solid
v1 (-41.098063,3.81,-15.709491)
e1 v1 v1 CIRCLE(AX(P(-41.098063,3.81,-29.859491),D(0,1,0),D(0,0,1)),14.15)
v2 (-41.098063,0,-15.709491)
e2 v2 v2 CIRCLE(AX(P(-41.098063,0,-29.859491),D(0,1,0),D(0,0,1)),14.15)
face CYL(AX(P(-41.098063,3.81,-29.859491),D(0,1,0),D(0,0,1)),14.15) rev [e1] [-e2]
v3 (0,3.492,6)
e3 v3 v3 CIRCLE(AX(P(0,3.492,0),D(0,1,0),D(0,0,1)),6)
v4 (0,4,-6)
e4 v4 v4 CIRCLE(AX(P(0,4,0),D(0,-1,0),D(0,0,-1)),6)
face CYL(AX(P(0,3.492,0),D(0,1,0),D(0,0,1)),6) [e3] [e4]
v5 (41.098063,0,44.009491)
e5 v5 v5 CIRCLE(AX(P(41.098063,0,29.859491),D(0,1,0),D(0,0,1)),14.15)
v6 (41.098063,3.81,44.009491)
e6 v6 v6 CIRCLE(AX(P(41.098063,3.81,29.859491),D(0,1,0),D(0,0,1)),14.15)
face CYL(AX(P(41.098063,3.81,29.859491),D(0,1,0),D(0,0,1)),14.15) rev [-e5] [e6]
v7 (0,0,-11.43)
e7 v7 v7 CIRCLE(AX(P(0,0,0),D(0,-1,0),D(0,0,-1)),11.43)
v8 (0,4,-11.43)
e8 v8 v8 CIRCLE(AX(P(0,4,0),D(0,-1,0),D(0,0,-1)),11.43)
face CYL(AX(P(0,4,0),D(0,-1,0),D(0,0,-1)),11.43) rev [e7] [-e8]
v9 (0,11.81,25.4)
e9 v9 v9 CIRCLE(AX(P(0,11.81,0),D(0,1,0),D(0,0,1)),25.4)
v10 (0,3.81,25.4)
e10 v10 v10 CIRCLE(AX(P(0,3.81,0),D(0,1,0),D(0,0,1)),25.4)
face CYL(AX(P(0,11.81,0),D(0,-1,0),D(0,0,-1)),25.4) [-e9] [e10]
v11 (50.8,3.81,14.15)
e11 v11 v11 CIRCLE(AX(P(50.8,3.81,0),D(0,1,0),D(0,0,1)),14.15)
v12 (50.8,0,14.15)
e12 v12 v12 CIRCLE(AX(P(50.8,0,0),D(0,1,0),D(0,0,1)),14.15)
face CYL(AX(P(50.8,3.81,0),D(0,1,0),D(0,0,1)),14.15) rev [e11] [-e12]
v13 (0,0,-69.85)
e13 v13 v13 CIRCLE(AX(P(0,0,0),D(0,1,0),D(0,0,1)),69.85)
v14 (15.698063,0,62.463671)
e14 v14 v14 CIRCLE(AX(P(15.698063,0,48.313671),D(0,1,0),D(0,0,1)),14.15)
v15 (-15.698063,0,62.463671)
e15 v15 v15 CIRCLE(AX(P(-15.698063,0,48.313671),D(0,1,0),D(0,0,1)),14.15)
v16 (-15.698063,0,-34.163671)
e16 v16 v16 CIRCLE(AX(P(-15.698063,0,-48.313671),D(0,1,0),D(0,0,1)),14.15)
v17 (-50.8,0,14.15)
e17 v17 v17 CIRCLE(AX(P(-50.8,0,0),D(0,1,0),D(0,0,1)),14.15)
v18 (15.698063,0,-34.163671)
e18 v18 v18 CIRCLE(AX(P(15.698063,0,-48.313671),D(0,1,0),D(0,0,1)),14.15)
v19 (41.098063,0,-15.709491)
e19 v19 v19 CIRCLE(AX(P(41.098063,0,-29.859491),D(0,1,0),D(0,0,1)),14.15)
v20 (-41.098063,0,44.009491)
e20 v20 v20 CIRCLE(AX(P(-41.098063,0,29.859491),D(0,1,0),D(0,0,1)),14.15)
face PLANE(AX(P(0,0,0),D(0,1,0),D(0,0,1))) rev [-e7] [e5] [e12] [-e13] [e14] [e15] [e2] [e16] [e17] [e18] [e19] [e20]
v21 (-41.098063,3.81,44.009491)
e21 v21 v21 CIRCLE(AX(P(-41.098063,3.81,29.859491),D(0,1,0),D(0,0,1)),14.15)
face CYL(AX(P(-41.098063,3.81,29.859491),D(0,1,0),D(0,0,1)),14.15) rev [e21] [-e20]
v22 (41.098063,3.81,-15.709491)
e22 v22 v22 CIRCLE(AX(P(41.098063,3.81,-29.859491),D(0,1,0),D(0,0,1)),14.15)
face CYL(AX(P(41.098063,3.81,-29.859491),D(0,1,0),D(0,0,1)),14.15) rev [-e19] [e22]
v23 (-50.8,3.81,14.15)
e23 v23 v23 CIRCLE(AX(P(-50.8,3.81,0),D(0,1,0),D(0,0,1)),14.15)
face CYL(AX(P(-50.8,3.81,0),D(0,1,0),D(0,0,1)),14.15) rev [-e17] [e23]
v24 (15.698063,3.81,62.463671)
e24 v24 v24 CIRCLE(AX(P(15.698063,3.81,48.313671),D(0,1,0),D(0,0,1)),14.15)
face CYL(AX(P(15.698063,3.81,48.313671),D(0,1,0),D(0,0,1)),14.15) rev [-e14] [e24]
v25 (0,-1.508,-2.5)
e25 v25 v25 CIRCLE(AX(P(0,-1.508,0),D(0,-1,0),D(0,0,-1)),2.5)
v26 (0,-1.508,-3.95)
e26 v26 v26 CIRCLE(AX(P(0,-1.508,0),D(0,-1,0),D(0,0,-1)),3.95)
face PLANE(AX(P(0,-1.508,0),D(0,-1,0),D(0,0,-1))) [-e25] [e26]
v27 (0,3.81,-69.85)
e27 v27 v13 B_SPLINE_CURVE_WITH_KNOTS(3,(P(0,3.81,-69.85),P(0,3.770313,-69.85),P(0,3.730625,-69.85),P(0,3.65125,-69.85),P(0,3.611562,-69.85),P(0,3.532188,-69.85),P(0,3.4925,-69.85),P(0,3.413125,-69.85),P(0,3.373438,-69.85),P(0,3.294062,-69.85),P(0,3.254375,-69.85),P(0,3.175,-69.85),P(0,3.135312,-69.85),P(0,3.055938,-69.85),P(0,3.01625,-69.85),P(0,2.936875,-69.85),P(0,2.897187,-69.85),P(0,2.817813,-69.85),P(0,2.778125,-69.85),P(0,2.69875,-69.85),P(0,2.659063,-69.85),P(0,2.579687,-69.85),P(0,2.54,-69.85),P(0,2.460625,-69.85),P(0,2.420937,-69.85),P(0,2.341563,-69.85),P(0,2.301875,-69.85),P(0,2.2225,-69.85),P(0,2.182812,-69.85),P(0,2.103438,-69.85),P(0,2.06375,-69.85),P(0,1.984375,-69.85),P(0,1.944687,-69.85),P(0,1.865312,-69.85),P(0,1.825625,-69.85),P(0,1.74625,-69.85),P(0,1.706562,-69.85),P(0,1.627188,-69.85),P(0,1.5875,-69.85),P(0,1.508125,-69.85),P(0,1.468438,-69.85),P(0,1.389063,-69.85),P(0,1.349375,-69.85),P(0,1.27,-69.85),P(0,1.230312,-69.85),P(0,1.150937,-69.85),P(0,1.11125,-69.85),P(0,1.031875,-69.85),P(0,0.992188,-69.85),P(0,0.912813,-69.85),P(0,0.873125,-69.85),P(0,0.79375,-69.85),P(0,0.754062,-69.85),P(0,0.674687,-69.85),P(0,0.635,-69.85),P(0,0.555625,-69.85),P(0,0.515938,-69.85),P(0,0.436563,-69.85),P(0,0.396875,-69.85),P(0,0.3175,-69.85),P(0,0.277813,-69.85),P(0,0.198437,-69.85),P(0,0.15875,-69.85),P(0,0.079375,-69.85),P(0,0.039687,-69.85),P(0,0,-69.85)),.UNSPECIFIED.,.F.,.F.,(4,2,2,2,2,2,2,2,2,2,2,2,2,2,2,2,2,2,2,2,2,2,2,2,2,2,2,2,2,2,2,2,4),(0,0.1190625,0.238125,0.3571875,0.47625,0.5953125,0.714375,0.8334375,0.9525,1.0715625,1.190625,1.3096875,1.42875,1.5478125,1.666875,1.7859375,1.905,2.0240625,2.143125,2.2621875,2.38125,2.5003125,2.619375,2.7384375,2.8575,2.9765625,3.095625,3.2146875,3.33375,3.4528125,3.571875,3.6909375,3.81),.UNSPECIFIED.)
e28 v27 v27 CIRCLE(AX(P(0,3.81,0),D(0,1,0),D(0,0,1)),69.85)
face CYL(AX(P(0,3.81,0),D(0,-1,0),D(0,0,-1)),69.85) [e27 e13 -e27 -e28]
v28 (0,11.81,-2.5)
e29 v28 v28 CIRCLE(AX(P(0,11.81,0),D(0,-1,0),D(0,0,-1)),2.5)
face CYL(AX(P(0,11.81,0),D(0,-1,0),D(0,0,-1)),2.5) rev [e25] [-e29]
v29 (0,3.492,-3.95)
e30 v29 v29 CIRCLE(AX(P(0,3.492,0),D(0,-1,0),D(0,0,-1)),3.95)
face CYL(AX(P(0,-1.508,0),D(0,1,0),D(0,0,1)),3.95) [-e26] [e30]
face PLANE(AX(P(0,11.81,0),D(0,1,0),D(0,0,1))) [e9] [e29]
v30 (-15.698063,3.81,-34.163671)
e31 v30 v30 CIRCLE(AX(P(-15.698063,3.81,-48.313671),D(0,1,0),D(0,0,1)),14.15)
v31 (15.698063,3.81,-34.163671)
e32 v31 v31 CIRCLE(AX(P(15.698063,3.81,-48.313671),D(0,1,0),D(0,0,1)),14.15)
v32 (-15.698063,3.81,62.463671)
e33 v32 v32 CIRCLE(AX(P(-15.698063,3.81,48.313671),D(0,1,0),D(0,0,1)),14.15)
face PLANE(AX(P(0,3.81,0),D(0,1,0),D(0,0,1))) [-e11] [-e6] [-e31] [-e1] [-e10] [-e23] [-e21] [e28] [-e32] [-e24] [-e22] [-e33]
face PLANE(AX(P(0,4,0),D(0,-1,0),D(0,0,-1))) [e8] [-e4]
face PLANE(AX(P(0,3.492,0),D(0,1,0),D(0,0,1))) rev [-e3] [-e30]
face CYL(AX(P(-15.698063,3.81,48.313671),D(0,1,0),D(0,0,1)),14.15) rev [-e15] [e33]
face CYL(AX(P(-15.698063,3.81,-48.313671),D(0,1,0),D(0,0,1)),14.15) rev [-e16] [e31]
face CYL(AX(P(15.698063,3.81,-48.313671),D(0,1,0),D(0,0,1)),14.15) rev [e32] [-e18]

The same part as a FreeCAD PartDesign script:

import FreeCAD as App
import Part
import Sketcher
Q = App.Units.Quantity

doc = App.newDocument("Part")
body = doc.addObject("PartDesign::Body", "Body")

sketch1 = doc.addObject("Sketcher::SketchObject", "Sketch")
body.addObject(sketch1)
sketch1.AttachmentSupport = (doc.XZ_Plane, [""])
sketch1.MapMode = "FlatFace"
sketch1.addGeometry(Part.Circle(App.Vector(0, 0, 0), App.Vector(0, 0, 1), 70), False)
sketch1.addConstraint(Sketcher.Constraint("Coincident", 0, 3, -1, 1))
sketch1.addConstraint(Sketcher.Constraint("Diameter", 0, Q("139.7 mm")))
pad1 = doc.addObject("PartDesign::Pad", "Pad")
body.addObject(pad1)
pad1.Profile = sketch1
pad1.Length = 3.81
pad1.Reversed = True

sketch2 = doc.addObject("Sketcher::SketchObject", "Sketch001")
body.addObject(sketch2)
sketch2.AttachmentSupport = (doc.XZ_Plane, [""])
sketch2.MapMode = "FlatFace"
sketch2.AttachmentOffset = App.Placement(App.Vector(0, 0, -3.81), App.Rotation())
sketch2.addGeometry(Part.Circle(App.Vector(0, 0, 0), App.Vector(0, 0, 1), 25), False)
sketch2.addConstraint(Sketcher.Constraint("Coincident", 0, 3, -1, 1))
sketch2.addConstraint(Sketcher.Constraint("Diameter", 0, Q("50.8 mm")))
pad2 = doc.addObject("PartDesign::Pad", "Pad001")
body.addObject(pad2)
pad2.Profile = sketch2
pad2.Length = 8
pad2.Reversed = True

sketch3 = doc.addObject("Sketcher::SketchObject", "Sketch002")
body.addObject(sketch3)
sketch3.AttachmentSupport = (doc.XZ_Plane, [""])
sketch3.MapMode = "FlatFace"
sketch3.addGeometry(Part.Circle(App.Vector(0, 0, 0), App.Vector(0, 0, 1), 11), False)
sketch3.addConstraint(Sketcher.Constraint("Coincident", 0, 3, -1, 1))
sketch3.addConstraint(Sketcher.Constraint("Diameter", 0, Q("22.86 mm")))
pocket1 = doc.addObject("PartDesign::Pocket", "Pocket")
body.addObject(pocket1)
pocket1.Profile = sketch3
pocket1.Length = 4

sketch4 = doc.addObject("Sketcher::SketchObject", "Sketch003")
body.addObject(sketch4)
sketch4.AttachmentSupport = (doc.XZ_Plane, [""])
sketch4.MapMode = "FlatFace"
sketch4.AttachmentOffset = App.Placement(App.Vector(0, 0, -4), App.Rotation())
sketch4.addGeometry(Part.Circle(App.Vector(0, 0, 0), App.Vector(0, 0, 1), 6), False)
sketch4.addConstraint(Sketcher.Constraint("Coincident", 0, 3, -1, 1))
sketch4.addConstraint(Sketcher.Constraint("Diameter", 0, Q("12 mm")))
pad3 = doc.addObject("PartDesign::Pad", "Pad002")
body.addObject(pad3)
pad3.Profile = sketch4
pad3.Length = 0.508

sketch5 = doc.addObject("Sketcher::SketchObject", "Sketch004")
body.addObject(sketch5)
sketch5.AttachmentSupport = (doc.XZ_Plane, [""])
sketch5.MapMode = "FlatFace"
sketch5.AttachmentOffset = App.Placement(App.Vector(0, 0, -3.492), App.Rotation())
sketch5.addGeometry(Part.Circle(App.Vector(0, 0, 0), App.Vector(0, 0, 1), 4), False)
sketch5.addConstraint(Sketcher.Constraint("Coincident", 0, 3, -1, 1))
sketch5.addConstraint(Sketcher.Constraint("Diameter", 0, Q("7.9 mm")))
pad4 = doc.addObject("PartDesign::Pad", "Pad003")
body.addObject(pad4)
pad4.Profile = sketch5
pad4.Length = 5

sketch6 = doc.addObject("Sketcher::SketchObject", "Sketch005")
body.addObject(sketch6)
sketch6.AttachmentSupport = (doc.XZ_Plane, [""])
sketch6.MapMode = "FlatFace"
sketch6.addGeometry(Part.Circle(App.Vector(0, 0, 0), App.Vector(0, 0, 1), 2.5), False)
sketch6.addConstraint(Sketcher.Constraint("Coincident", 0, 3, -1, 1))
sketch6.addConstraint(Sketcher.Constraint("Diameter", 0, Q("5 mm")))
pocket2 = doc.addObject("PartDesign::Pocket", "Pocket001")
body.addObject(pocket2)
pocket2.Profile = sketch6
pocket2.Type = "ThroughAll"
pocket2.Midplane = True

sketch7 = doc.addObject("Sketcher::SketchObject", "Sketch006")
body.addObject(sketch7)
sketch7.AttachmentSupport = (doc.XZ_Plane, [""])
sketch7.MapMode = "FlatFace"
sketch7.AttachmentOffset = App.Placement(App.Vector(0, 0, -3.81), App.Rotation())
sketch7.addGeometry(Part.Circle(App.Vector(-51, 0, 0), App.Vector(0, 0, 1), 14), False)
sketch7.addGeometry(Part.Circle(App.Vector(-41, -30, 0), App.Vector(0, 0, 1), 14), False)
sketch7.addGeometry(Part.Circle(App.Vector(-16, -48, 0), App.Vector(0, 0, 1), 14), False)
sketch7.addGeometry(Part.Circle(App.Vector(16, -48, 0), App.Vector(0, 0, 1), 14), False)
sketch7.addGeometry(Part.Circle(App.Vector(41, -30, 0), App.Vector(0, 0, 1), 14), False)
sketch7.addGeometry(Part.Circle(App.Vector(51, 0, 0), App.Vector(0, 0, 1), 14), False)
sketch7.addGeometry(Part.Circle(App.Vector(41, 30, 0), App.Vector(0, 0, 1), 14), False)
sketch7.addGeometry(Part.Circle(App.Vector(16, 48, 0), App.Vector(0, 0, 1), 14), False)
sketch7.addGeometry(Part.Circle(App.Vector(-16, 48, 0), App.Vector(0, 0, 1), 14), False)
sketch7.addGeometry(Part.Circle(App.Vector(-41, 30, 0), App.Vector(0, 0, 1), 14), False)
sketch7.addConstraint(Sketcher.Constraint("Equal", 0, 1))
sketch7.addConstraint(Sketcher.Constraint("Equal", 1, 2))
sketch7.addConstraint(Sketcher.Constraint("Equal", 2, 3))
sketch7.addConstraint(Sketcher.Constraint("Equal", 3, 4))
sketch7.addConstraint(Sketcher.Constraint("Equal", 4, 5))
sketch7.addConstraint(Sketcher.Constraint("Equal", 5, 6))
sketch7.addConstraint(Sketcher.Constraint("Equal", 6, 7))
sketch7.addConstraint(Sketcher.Constraint("Equal", 7, 8))
sketch7.addConstraint(Sketcher.Constraint("Equal", 8, 9))
sketch7.addConstraint(Sketcher.Constraint("Symmetric", 0, 3, 5, 3, -1, 1))
sketch7.addConstraint(Sketcher.Constraint("Symmetric", 1, 3, 6, 3, -1, 1))
sketch7.addConstraint(Sketcher.Constraint("Symmetric", 2, 3, 7, 3, -1, 1))
sketch7.addConstraint(Sketcher.Constraint("Symmetric", 3, 3, 8, 3, -1, 1))
sketch7.addConstraint(Sketcher.Constraint("Symmetric", 4, 3, 9, 3, -1, 1))
sketch7.addConstraint(Sketcher.Constraint("Symmetric", 2, 3, 3, 3, -2))
sketch7.addConstraint(Sketcher.Constraint("Symmetric", 1, 3, 4, 3, -2))
sketch7.addConstraint(Sketcher.Constraint("PointOnObject", 0, 3, -1))
sketch7.addConstraint(Sketcher.Constraint("Diameter", 0, Q("28.3 mm")))
sketch7.addConstraint(Sketcher.Constraint("DistanceX", 0, 3, -1, 1, Q("50.8 mm")))
sketch7.addConstraint(Sketcher.Constraint("DistanceX", 1, 3, 2, 3, Q("25.4 mm")))
sketch7.addConstraint(Sketcher.Constraint("DistanceY", 1, 3, -1, 1, Q("29.859491 mm")))
sketch7.addConstraint(Sketcher.Constraint("DistanceY", 2, 3, -1, 1, Q("48.313671 mm")))
sketch7.addConstraint(Sketcher.Constraint("DistanceX", 1, 3, -1, 1, Q("41.098063 mm")))
doc.recompute()
hole = doc.addObject("PartDesign::Hole", "Hole")
body.addObject(hole)
hole.Profile = sketch7
hole.ThreadType = "None"
hole.Diameter = 28.3
hole.DepthType = "ThroughAll"
hole.Reversed = True

doc.recompute()
